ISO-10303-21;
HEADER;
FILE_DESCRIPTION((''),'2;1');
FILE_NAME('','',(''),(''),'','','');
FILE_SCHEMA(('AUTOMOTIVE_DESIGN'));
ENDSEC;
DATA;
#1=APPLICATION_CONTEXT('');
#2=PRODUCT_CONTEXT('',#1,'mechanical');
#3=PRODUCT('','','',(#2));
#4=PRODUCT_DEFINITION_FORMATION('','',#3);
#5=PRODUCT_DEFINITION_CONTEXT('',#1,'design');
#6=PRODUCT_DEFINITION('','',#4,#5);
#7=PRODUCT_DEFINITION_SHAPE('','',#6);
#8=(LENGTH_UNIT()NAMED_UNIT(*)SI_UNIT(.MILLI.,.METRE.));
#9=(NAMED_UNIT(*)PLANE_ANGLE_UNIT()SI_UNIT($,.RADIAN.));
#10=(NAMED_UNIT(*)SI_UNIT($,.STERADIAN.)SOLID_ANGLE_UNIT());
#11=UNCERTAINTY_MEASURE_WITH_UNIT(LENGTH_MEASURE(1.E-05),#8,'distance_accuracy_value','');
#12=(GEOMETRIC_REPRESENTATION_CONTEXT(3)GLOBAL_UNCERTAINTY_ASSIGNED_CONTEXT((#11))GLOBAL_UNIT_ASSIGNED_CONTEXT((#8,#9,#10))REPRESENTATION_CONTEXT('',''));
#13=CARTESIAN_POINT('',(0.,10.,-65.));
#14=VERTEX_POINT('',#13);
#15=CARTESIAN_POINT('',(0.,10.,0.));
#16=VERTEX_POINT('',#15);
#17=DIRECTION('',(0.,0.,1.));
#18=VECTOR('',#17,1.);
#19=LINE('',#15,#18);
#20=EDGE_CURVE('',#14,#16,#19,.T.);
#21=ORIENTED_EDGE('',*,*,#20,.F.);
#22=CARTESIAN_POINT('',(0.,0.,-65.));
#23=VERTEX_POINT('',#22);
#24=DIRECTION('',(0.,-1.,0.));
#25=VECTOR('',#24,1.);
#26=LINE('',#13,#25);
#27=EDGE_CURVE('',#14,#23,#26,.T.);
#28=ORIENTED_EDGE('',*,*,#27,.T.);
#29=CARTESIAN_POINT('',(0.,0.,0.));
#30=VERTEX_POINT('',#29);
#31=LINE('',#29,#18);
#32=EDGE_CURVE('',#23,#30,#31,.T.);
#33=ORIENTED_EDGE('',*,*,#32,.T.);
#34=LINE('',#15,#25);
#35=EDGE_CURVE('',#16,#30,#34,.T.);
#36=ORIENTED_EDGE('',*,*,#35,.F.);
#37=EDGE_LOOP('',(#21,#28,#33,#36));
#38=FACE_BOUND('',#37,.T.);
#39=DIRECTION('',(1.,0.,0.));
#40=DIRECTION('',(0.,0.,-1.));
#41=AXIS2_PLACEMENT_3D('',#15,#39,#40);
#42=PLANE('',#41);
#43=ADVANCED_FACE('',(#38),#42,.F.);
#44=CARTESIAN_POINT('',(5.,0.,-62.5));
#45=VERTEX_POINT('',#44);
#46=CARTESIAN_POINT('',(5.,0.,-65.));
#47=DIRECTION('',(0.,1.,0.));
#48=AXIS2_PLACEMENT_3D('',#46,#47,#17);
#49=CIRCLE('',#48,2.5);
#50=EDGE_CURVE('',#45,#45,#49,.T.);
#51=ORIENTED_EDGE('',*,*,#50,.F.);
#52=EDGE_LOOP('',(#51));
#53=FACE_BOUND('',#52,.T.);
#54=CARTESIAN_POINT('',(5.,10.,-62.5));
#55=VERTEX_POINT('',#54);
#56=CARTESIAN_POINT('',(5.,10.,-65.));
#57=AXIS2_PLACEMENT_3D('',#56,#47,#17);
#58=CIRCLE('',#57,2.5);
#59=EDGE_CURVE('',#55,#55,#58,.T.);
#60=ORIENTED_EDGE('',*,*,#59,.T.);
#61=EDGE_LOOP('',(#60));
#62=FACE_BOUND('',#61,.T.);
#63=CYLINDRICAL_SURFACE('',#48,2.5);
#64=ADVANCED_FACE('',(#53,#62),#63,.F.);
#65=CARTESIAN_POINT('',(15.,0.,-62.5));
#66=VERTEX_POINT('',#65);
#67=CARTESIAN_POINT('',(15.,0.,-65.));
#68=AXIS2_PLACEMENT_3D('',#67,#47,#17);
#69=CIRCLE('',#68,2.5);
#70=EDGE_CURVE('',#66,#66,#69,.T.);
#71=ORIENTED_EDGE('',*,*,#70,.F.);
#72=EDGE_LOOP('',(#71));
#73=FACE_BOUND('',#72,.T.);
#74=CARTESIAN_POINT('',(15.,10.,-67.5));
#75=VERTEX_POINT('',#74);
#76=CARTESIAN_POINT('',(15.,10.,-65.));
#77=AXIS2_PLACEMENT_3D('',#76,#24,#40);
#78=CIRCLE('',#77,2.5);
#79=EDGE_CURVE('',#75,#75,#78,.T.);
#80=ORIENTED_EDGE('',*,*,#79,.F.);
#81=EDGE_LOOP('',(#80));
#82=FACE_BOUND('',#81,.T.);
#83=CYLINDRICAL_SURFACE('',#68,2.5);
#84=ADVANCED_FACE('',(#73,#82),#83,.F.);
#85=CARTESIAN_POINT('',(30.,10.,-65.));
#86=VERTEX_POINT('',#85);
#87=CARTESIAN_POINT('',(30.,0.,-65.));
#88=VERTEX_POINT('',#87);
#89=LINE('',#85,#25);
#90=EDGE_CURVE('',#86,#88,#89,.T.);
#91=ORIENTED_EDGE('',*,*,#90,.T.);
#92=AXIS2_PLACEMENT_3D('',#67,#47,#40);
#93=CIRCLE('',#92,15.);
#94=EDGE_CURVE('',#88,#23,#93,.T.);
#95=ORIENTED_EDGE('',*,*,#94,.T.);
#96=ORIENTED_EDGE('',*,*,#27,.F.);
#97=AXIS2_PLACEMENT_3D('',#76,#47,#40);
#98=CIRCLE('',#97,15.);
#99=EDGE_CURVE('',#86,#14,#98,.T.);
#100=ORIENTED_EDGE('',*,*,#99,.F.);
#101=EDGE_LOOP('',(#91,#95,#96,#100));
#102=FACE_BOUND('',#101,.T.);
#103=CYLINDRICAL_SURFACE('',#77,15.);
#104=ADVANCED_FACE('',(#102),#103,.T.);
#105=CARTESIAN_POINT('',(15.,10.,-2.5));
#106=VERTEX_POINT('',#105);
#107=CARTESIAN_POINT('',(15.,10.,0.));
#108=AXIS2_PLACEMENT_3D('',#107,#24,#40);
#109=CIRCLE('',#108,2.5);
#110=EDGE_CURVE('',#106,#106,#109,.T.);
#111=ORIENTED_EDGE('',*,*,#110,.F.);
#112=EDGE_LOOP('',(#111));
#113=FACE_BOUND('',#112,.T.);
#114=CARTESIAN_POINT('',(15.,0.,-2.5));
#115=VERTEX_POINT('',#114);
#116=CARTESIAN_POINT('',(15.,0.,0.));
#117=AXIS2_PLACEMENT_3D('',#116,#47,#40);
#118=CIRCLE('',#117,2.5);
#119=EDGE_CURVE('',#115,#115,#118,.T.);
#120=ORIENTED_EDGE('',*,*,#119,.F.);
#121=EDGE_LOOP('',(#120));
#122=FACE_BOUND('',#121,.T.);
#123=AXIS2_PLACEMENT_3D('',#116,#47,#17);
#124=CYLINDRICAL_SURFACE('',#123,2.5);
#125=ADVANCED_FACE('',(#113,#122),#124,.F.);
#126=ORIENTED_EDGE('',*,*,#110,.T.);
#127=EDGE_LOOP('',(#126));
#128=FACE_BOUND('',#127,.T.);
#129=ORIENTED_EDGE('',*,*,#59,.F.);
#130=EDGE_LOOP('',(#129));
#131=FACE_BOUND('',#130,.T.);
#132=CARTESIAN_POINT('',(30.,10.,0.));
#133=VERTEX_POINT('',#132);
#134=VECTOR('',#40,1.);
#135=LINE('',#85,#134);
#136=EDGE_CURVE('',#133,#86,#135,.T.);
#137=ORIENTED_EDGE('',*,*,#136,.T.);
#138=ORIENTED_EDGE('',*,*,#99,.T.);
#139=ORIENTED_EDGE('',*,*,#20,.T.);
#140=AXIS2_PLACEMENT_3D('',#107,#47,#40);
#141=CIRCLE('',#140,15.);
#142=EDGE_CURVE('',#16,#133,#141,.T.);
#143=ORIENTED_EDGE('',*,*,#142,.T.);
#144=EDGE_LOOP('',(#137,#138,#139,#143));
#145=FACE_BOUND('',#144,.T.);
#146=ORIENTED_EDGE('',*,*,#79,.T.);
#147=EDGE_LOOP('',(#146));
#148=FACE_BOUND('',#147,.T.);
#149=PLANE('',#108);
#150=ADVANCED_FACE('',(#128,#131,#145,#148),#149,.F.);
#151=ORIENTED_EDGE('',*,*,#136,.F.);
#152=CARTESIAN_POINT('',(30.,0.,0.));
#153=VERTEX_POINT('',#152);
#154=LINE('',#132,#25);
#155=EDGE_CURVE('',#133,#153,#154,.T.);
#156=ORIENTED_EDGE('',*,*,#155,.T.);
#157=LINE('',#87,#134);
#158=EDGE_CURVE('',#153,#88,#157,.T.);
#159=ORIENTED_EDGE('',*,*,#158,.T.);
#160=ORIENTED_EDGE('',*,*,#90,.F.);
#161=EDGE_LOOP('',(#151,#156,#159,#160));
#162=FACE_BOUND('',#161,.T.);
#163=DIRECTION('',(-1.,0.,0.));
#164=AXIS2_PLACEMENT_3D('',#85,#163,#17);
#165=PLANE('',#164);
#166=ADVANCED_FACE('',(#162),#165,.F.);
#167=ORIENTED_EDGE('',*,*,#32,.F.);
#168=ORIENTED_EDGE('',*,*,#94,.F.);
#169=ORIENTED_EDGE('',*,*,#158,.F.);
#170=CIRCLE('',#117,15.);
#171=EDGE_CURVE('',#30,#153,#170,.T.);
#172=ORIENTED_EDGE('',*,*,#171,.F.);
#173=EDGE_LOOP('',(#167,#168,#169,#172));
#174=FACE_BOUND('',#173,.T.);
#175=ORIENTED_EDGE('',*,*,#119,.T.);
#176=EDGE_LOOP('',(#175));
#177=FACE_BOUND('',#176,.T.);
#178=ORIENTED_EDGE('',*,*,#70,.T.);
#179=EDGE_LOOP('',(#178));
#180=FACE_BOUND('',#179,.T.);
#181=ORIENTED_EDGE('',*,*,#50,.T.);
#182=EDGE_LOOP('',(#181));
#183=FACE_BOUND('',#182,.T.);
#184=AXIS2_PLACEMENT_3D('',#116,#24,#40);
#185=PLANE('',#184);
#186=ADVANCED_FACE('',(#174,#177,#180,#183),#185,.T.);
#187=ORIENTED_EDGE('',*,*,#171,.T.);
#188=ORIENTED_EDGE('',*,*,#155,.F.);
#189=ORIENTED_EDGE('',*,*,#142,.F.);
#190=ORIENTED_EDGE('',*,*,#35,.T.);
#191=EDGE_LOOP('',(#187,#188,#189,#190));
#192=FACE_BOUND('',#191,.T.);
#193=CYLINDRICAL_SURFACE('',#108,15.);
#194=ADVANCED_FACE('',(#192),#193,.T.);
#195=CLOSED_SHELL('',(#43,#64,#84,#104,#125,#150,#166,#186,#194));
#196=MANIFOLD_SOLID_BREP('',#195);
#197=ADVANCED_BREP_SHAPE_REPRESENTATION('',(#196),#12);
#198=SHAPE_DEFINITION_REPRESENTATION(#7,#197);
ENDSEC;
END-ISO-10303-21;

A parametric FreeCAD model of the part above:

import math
import FreeCAD as App
import Part
import Sketcher

doc = App.newDocument("Part")
body = doc.addObject("PartDesign::Body", "Body")

# Sketch on XZ plane
sketch1 = doc.addObject("Sketcher::SketchObject", "Sketch")
body.addObject(sketch1)
sketch1.AttachmentSupport = (doc.XZ_Plane, [""])
sketch1.MapMode = "FlatFace"
sketch1.addGeometry(Part.LineSegment(App.Vector(0, -65, 0), App.Vector(0, 0, 0)), False)
sketch1.addGeometry(Part.ArcOfCircle(Part.Circle(App.Vector(15, 0, 0), App.Vector(0, 0, 1), 15), math.radians(0), math.radians(180)), False)
sketch1.addGeometry(Part.LineSegment(App.Vector(30, 0, 0), App.Vector(30, -65, 0)), False)
sketch1.addGeometry(Part.ArcOfCircle(Part.Circle(App.Vector(15, -65, 0), App.Vector(0, 0, 1), 15), math.radians(180), math.radians(360)), False)
sketch1.addConstraint(Sketcher.Constraint("Tangent", 0, 2, 1, 2))
sketch1.addConstraint(Sketcher.Constraint("Tangent", 1, 1, 2, 1))
sketch1.addConstraint(Sketcher.Constraint("Tangent", 2, 2, 3, 2))
sketch1.addConstraint(Sketcher.Constraint("Tangent", 3, 1, 0, 1))
sketch1.addConstraint(Sketcher.Constraint("Vertical", 0))
sketch1.addConstraint(Sketcher.Constraint("Vertical", 2))
sketch1.addConstraint(Sketcher.Constraint("Coincident", 0, 2, -1, 1))
sketch1.addConstraint(Sketcher.Constraint("Radius", 1, 15.0))
sketch1.addConstraint(Sketcher.Constraint("DistanceY", 0, 1, 0, 2, 65.0))
pad1 = doc.addObject("PartDesign::Pad", "Pad")
body.addObject(pad1)
pad1.Profile = sketch1
pad1.Length = 10
pad1.Reversed = True

# Sketch on XZ plane
sketch2 = doc.addObject("Sketcher::SketchObject", "Sketch001")
body.addObject(sketch2)
sketch2.AttachmentSupport = (doc.XZ_Plane, [""])
sketch2.MapMode = "FlatFace"
sketch2.AttachmentOffset = App.Placement(App.Vector(0, 0, -10), App.Rotation())
sketch2.addGeometry(Part.Circle(App.Vector(15, -65, 0), App.Vector(0, 0, 1), 2.5), False)
sketch2.addGeometry(Part.Circle(App.Vector(15, 0, 0), App.Vector(0, 0, 1), 2.5), False)
sketch2.addConstraint(Sketcher.Constraint("Equal", 0, 1))
sketch2.addConstraint(Sketcher.Constraint("PointOnObject", 1, 3, -1))
sketch2.addConstraint(Sketcher.Constraint("Vertical", 0, 3, 1, 3))
sketch2.addConstraint(Sketcher.Constraint("Diameter", 0, 5.0))
sketch2.addConstraint(Sketcher.Constraint("DistanceX", -1, 1, 0, 3, 15.0))
sketch2.addConstraint(Sketcher.Constraint("DistanceY", 0, 3, -1, 1, 65.0))
pocket1 = doc.addObject("PartDesign::Pocket", "Pocket")
body.addObject(pocket1)
pocket1.Profile = sketch2
pocket1.Type = "ThroughAll"
pocket1.Midplane = True

# Sketch on XZ plane
sketch3 = doc.addObject("Sketcher::SketchObject", "Sketch002")
body.addObject(sketch3)
sketch3.AttachmentSupport = (doc.XZ_Plane, [""])
sketch3.MapMode = "FlatFace"
sketch3.AttachmentOffset = App.Placement(App.Vector(0, 0, -10), App.Rotation())
sketch3.addGeometry(Part.Circle(App.Vector(5, -65, 0), App.Vector(0, 0, 1), 2.5), False)
sketch3.addConstraint(Sketcher.Constraint("Diameter", 0, 5.0))
sketch3.addConstraint(Sketcher.Constraint("DistanceX", -1, 1, 0, 3, 5.0))
sketch3.addConstraint(Sketcher.Constraint("DistanceY", 0, 3, -1, 1, 65.0))
pocket2 = doc.addObject("PartDesign::Pocket", "Pocket001")
body.addObject(pocket2)
pocket2.Profile = sketch3
pocket2.Length = 10
pocket2.Reversed = True

doc.recompute()
